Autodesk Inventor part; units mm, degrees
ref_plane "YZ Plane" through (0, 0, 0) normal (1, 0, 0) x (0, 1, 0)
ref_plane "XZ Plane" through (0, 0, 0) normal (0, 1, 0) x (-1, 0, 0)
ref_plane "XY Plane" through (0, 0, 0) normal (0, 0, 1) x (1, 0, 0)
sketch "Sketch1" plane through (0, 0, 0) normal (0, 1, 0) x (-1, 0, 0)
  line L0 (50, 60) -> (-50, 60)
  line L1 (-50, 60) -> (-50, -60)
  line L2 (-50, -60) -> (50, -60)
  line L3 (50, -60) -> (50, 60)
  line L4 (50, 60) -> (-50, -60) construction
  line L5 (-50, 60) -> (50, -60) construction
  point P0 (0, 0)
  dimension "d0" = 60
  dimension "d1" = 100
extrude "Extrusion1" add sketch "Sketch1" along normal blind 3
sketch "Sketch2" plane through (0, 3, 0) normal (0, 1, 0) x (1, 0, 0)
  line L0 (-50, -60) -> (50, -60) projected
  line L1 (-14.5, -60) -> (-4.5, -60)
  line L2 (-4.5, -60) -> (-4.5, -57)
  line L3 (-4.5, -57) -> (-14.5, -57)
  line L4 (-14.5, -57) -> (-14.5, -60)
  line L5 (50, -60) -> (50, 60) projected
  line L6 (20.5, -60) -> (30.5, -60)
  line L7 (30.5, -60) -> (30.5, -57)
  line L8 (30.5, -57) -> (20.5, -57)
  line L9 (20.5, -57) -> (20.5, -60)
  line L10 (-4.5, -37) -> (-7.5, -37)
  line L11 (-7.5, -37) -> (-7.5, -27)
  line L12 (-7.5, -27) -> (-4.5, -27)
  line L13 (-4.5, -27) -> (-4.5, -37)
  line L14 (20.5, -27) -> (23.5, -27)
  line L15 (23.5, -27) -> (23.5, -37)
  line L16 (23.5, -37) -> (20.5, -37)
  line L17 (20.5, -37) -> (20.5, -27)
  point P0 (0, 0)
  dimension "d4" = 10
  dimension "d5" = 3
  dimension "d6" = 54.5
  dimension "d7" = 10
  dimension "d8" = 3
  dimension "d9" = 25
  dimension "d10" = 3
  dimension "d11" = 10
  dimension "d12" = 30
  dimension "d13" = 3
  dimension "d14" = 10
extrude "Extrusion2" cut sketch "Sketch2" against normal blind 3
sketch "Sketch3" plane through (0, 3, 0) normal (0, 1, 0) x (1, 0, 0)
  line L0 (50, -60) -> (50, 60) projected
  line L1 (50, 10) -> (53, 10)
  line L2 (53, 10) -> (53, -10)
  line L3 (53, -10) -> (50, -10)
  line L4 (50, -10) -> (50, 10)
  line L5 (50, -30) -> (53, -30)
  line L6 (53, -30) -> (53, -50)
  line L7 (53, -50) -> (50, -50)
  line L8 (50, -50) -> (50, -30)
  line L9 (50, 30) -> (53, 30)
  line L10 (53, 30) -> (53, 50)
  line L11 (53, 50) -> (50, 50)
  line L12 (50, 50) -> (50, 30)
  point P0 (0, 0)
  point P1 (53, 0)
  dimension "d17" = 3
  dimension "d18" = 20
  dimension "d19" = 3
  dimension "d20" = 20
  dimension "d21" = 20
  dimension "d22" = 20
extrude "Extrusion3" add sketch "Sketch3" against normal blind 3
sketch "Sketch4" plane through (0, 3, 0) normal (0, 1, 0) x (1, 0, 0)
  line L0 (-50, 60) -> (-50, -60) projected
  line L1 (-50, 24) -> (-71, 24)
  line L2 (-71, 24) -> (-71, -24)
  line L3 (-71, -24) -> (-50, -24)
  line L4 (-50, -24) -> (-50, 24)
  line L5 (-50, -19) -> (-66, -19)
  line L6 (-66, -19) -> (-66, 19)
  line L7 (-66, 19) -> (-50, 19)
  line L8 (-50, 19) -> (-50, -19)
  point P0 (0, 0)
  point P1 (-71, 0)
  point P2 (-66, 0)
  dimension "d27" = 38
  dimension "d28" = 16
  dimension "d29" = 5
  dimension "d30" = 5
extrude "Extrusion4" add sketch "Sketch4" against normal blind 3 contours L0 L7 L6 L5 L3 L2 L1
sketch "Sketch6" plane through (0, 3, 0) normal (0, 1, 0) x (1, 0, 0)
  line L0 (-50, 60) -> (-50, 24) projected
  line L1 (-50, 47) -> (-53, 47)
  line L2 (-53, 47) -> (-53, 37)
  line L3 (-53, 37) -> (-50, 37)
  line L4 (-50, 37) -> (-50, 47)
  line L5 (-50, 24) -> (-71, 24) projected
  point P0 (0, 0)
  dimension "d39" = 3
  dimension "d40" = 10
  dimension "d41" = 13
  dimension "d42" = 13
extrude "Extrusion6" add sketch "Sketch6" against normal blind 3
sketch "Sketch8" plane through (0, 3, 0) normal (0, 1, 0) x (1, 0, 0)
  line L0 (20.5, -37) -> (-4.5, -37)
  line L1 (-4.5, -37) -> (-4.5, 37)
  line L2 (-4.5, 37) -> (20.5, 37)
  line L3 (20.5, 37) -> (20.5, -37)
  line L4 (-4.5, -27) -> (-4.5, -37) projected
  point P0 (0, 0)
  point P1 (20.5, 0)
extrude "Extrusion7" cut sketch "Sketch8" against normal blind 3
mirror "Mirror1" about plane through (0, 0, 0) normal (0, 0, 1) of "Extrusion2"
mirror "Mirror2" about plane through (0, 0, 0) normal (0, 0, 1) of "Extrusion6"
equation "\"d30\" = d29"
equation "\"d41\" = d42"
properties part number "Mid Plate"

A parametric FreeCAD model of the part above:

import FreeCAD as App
import Part
import Sketcher
Q = App.Units.Quantity

doc = App.newDocument("Part")
body = doc.addObject("PartDesign::Body", "Body")

sketch1 = doc.addObject("Sketcher::SketchObject", "Sketch")
body.addObject(sketch1)
sketch1.AttachmentSupport = (doc.XZ_Plane, [""])
sketch1.MapMode = "FlatFace"
sketch1.addGeometry([
    Part.LineSegment(App.Vector(-50, -60, 0), App.Vector(-50, 60, 0)),
    Part.LineSegment(App.Vector(-50, 60, 0), App.Vector(50, 60, 0)),
    Part.LineSegment(App.Vector(50, 60, 0), App.Vector(50, -60, 0)),
    Part.LineSegment(App.Vector(50, -60, 0), App.Vector(-50, -60, 0)),
], False)
sketch1.addConstraint([
    Sketcher.Constraint("Coincident", 0, 2, 1, 1),
    Sketcher.Constraint("Coincident", 1, 2, 2, 1),
    Sketcher.Constraint("Coincident", 2, 2, 3, 1),
    Sketcher.Constraint("Coincident", 3, 2, 0, 1),
    Sketcher.Constraint("Vertical", 0),
    Sketcher.Constraint("Horizontal", 1),
    Sketcher.Constraint("Vertical", 2),
    Sketcher.Constraint("Horizontal", 3),
    Sketcher.Constraint("Symmetric", 0, 2, 2, 2, -1, 1),
    Sketcher.Constraint("DistanceX", 1, 1, 1, 2, Q("100 mm")),
    Sketcher.Constraint("DistanceY", -1, 1, 0, 2, Q("60 mm")),
])
pad1 = doc.addObject("PartDesign::Pad", "Pad")
body.addObject(pad1)
pad1.Profile = sketch1
pad1.Length = 3
pad1.Reversed = True

sketch2 = doc.addObject("Sketcher::SketchObject", "Sketch001")
body.addObject(sketch2)
sketch2.AttachmentSupport = (doc.XZ_Plane, [""])
sketch2.MapMode = "FlatFace"
sketch2.AttachmentOffset = App.Placement(App.Vector(0, 0, -3), App.Rotation())
sketch2.addGeometry([
    Part.LineSegment(App.Vector(-14.5, 57, 0), App.Vector(-14.5, 60, 0)),
    Part.LineSegment(App.Vector(-14.5, 60, 0), App.Vector(-4.5, 60, 0)),
    Part.LineSegment(App.Vector(-4.5, 60, 0), App.Vector(-4.5, 57, 0)),
    Part.LineSegment(App.Vector(-4.5, 57, 0), App.Vector(-14.5, 57, 0)),
    Part.LineSegment(App.Vector(20.5, 57, 0), App.Vector(20.5, 60, 0)),
    Part.LineSegment(App.Vector(20.5, 60, 0), App.Vector(30.5, 60, 0)),
    Part.LineSegment(App.Vector(30.5, 60, 0), App.Vector(30.5, 57, 0)),
    Part.LineSegment(App.Vector(30.5, 57, 0), App.Vector(20.5, 57, 0)),
    Part.LineSegment(App.Vector(-7.5, 37, 0), App.Vector(-4.5, 37, 0)),
    Part.LineSegment(App.Vector(-4.5, 37, 0), App.Vector(-4.5, 27, 0)),
    Part.LineSegment(App.Vector(-4.5, 27, 0), App.Vector(-7.5, 27, 0)),
    Part.LineSegment(App.Vector(-7.5, 27, 0), App.Vector(-7.5, 37, 0)),
    Part.LineSegment(App.Vector(23.5, 27, 0), App.Vector(20.5, 27, 0)),
    Part.LineSegment(App.Vector(20.5, 27, 0), App.Vector(20.5, 37, 0)),
    Part.LineSegment(App.Vector(20.5, 37, 0), App.Vector(23.5, 37, 0)),
    Part.LineSegment(App.Vector(23.5, 37, 0), App.Vector(23.5, 27, 0)),
], False)
sketch2.addConstraint([
    Sketcher.Constraint("Coincident", 0, 2, 1, 1),
    Sketcher.Constraint("Coincident", 1, 2, 2, 1),
    Sketcher.Constraint("Coincident", 2, 2, 3, 1),
    Sketcher.Constraint("Coincident", 3, 2, 0, 1),
    Sketcher.Constraint("Coincident", 4, 2, 5, 1),
    Sketcher.Constraint("Coincident", 5, 2, 6, 1),
    Sketcher.Constraint("Coincident", 6, 2, 7, 1),
    Sketcher.Constraint("Coincident", 7, 2, 4, 1),
    Sketcher.Constraint("Coincident", 8, 2, 9, 1),
    Sketcher.Constraint("Coincident", 9, 2, 10, 1),
    Sketcher.Constraint("Coincident", 10, 2, 11, 1),
    Sketcher.Constraint("Coincident", 11, 2, 8, 1),
    Sketcher.Constraint("Coincident", 12, 2, 13, 1),
    Sketcher.Constraint("Coincident", 13, 2, 14, 1),
    Sketcher.Constraint("Coincident", 14, 2, 15, 1),
    Sketcher.Constraint("Coincident", 15, 2, 12, 1),
    Sketcher.Constraint("Vertical", 0),
    Sketcher.Constraint("Horizontal", 1),
    Sketcher.Constraint("Vertical", 2),
    Sketcher.Constraint("Horizontal", 3),
    Sketcher.Constraint("Vertical", 4),
    Sketcher.Constraint("Horizontal", 5),
    Sketcher.Constraint("Vertical", 6),
    Sketcher.Constraint("Horizontal", 7),
    Sketcher.Constraint("Horizontal", 8),
    Sketcher.Constraint("Vertical", 9),
    Sketcher.Constraint("Horizontal", 10),
    Sketcher.Constraint("Vertical", 11),
    Sketcher.Constraint("Horizontal", 12),
    Sketcher.Constraint("Vertical", 13),
    Sketcher.Constraint("Horizontal", 14),
    Sketcher.Constraint("Vertical", 15),
    Sketcher.Constraint("Horizontal", 1, 2, 4, 2),
    Sketcher.Constraint("Horizontal", 3, 2, 6, 2),
    Sketcher.Constraint("Horizontal", 10, 2, 12, 2),
    Sketcher.Constraint("Horizontal", 11, 2, 13, 2),
    Sketcher.Constraint("Vertical", 2, 2, 8, 2),
    Sketcher.Constraint("Vertical", 7, 2, 12, 2),
    Sketcher.Constraint("Equal", 3, 5),
    Sketcher.Constraint("Equal", 10, 12),
    Sketcher.Constraint("Equal", 14, 0),
    Sketcher.Constraint("Equal", 7, 9),
    Sketcher.Constraint("DistanceX", 1, 1, 1, 2, Q("10 mm")),
    Sketcher.Constraint("DistanceX", 8, 1, 8, 2, Q("3 mm")),
    Sketcher.Constraint("DistanceX", 1, 2, 4, 2, Q("25 mm")),
    Sketcher.Constraint("DistanceY", 9, 2, 2, 2, Q("30 mm")),
    Sketcher.Constraint("DistanceY", -1, 1, 0, 2, Q("60 mm")),
    Sketcher.Constraint("DistanceX", 0, 2, -1, 1, Q("14.5 mm")),
])
pocket1 = doc.addObject("PartDesign::Pocket", "Pocket")
body.addObject(pocket1)
pocket1.Profile = sketch2
pocket1.Length = 3
pocket1.Reversed = True

sketch3 = doc.addObject("Sketcher::SketchObject", "Sketch002")
body.addObject(sketch3)
sketch3.AttachmentSupport = (doc.XZ_Plane, [""])
sketch3.MapMode = "FlatFace"
sketch3.AttachmentOffset = App.Placement(App.Vector(0, 0, -3), App.Rotation())
sketch3.addGeometry([
    Part.LineSegment(App.Vector(50, -50, 0), App.Vector(50, -30, 0)),
    Part.LineSegment(App.Vector(50, -30, 0), App.Vector(53, -30, 0)),
    Part.LineSegment(App.Vector(53, -30, 0), App.Vector(53, -50, 0)),
    Part.LineSegment(App.Vector(53, -50, 0), App.Vector(50, -50, 0)),
    Part.LineSegment(App.Vector(50, -10, 0), App.Vector(50, 10, 0)),
    Part.LineSegment(App.Vector(50, 10, 0), App.Vector(53, 10, 0)),
    Part.LineSegment(App.Vector(53, 10, 0), App.Vector(53, -10, 0)),
    Part.LineSegment(App.Vector(53, -10, 0), App.Vector(50, -10, 0)),
    Part.LineSegment(App.Vector(50, 30, 0), App.Vector(50, 50, 0)),
    Part.LineSegment(App.Vector(50, 50, 0), App.Vector(53, 50, 0)),
    Part.LineSegment(App.Vector(53, 50, 0), App.Vector(53, 30, 0)),
    Part.LineSegment(App.Vector(53, 30, 0), App.Vector(50, 30, 0)),
], False)
sketch3.addConstraint([
    Sketcher.Constraint("Coincident", 0, 2, 1, 1),
    Sketcher.Constraint("Coincident", 1, 2, 2, 1),
    Sketcher.Constraint("Coincident", 2, 2, 3, 1),
    Sketcher.Constraint("Coincident", 3, 2, 0, 1),
    Sketcher.Constraint("Coincident", 4, 2, 5, 1),
    Sketcher.Constraint("Coincident", 5, 2, 6, 1),
    Sketcher.Constraint("Coincident", 6, 2, 7, 1),
    Sketcher.Constraint("Coincident", 7, 2, 4, 1),
    Sketcher.Constraint("Coincident", 8, 2, 9, 1),
    Sketcher.Constraint("Coincident", 9, 2, 10, 1),
    Sketcher.Constraint("Coincident", 10, 2, 11, 1),
    Sketcher.Constraint("Coincident", 11, 2, 8, 1),
    Sketcher.Constraint("Vertical", 0),
    Sketcher.Constraint("Horizontal", 1),
    Sketcher.Constraint("Vertical", 2),
    Sketcher.Constraint("Horizontal", 3),
    Sketcher.Constraint("Vertical", 4),
    Sketcher.Constraint("Horizontal", 5),
    Sketcher.Constraint("Vertical", 6),
    Sketcher.Constraint("Horizontal", 7),
    Sketcher.Constraint("Vertical", 8),
    Sketcher.Constraint("Horizontal", 9),
    Sketcher.Constraint("Vertical", 10),
    Sketcher.Constraint("Horizontal", 11),
    Sketcher.Constraint("Symmetric", 3, 2, 8, 2, -1),
    Sketcher.Constraint("Symmetric", 1, 2, 10, 2, -1),
    Sketcher.Constraint("Vertical", 3, 2, 4, 2),
    Sketcher.Constraint("Vertical", 2, 2, 5, 2),
    Sketcher.Constraint("Equal", 2, 4),
    Sketcher.Constraint("DistanceX", 1, 1, 1, 2, Q("3 mm")),
    Sketcher.Constraint("DistanceY", 0, 1, 0, 2, Q("20 mm")),
    Sketcher.Constraint("DistanceY", 1, 2, 6, 2, Q("20 mm")),
    Sketcher.Constraint("DistanceY", 5, 2, 10, 2, Q("20 mm")),
    Sketcher.Constraint("DistanceX", -1, 1, 0, 2, Q("50 mm")),
])
pad2 = doc.addObject("PartDesign::Pad", "Pad001")
body.addObject(pad2)
pad2.Profile = sketch3
pad2.Length = 3

sketch4 = doc.addObject("Sketcher::SketchObject", "Sketch003")
body.addObject(sketch4)
sketch4.AttachmentSupport = (doc.XZ_Plane, [""])
sketch4.MapMode = "FlatFace"
sketch4.AttachmentOffset = App.Placement(App.Vector(0, 0, -3), App.Rotation())
sketch4.addGeometry([
    Part.LineSegment(App.Vector(-50, -19, 0), App.Vector(-50, -24, 0)),
    Part.LineSegment(App.Vector(-50, -24, 0), App.Vector(-71, -24, 0)),
    Part.LineSegment(App.Vector(-71, -24, 0), App.Vector(-71, 24, 0)),
    Part.LineSegment(App.Vector(-71, 24, 0), App.Vector(-50, 24, 0)),
    Part.LineSegment(App.Vector(-50, 24, 0), App.Vector(-50, 19, 0)),
    Part.LineSegment(App.Vector(-50, 19, 0), App.Vector(-66, 19, 0)),
    Part.LineSegment(App.Vector(-66, 19, 0), App.Vector(-66, -19, 0)),
    Part.LineSegment(App.Vector(-66, -19, 0), App.Vector(-50, -19, 0)),
], False)
sketch4.addConstraint([
    Sketcher.Constraint("Coincident", 0, 2, 1, 1),
    Sketcher.Constraint("Coincident", 1, 2, 2, 1),
    Sketcher.Constraint("Coincident", 2, 2, 3, 1),
    Sketcher.Constraint("Coincident", 3, 2, 4, 1),
    Sketcher.Constraint("Coincident", 4, 2, 5, 1),
    Sketcher.Constraint("Coincident", 5, 2, 6, 1),
    Sketcher.Constraint("Coincident", 6, 2, 7, 1),
    Sketcher.Constraint("Coincident", 7, 2, 0, 1),
    Sketcher.Constraint("Vertical", 0),
    Sketcher.Constraint("Horizontal", 1),
    Sketcher.Constraint("Vertical", 2),
    Sketcher.Constraint("Horizontal", 3),
    Sketcher.Constraint("Vertical", 4),
    Sketcher.Constraint("Horizontal", 5),
    Sketcher.Constraint("Vertical", 6),
    Sketcher.Constraint("Horizontal", 7),
    Sketcher.Constraint("Symmetric", 0, 2, 3, 2, -1),
    Sketcher.Constraint("Equal", 0, 4),
    Sketcher.Constraint("DistanceX", 5, 2, 5, 1, Q("16 mm")),
    Sketcher.Constraint("DistanceY", 0, 2, 0, 1, Q("5 mm")),
    Sketcher.Constraint("DistanceY", 6, 2, 6, 1, Q("38 mm")),
    Sketcher.Constraint("DistanceX", 2, 2, 5, 2, Q("5 mm")),
    Sketcher.Constraint("DistanceX", 0, 2, -1, 1, Q("50 mm")),
])
pad3 = doc.addObject("PartDesign::Pad", "Pad002")
body.addObject(pad3)
pad3.Profile = sketch4
pad3.Length = 3

sketch5 = doc.addObject("Sketcher::SketchObject", "Sketch004")
body.addObject(sketch5)
sketch5.AttachmentSupport = (doc.XZ_Plane, [""])
sketch5.MapMode = "FlatFace"
sketch5.AttachmentOffset = App.Placement(App.Vector(0, 0, -3), App.Rotation())
sketch5.addGeometry([
    Part.LineSegment(App.Vector(-50, -37, 0), App.Vector(-50, -47, 0)),
    Part.LineSegment(App.Vector(-50, -47, 0), App.Vector(-53, -47, 0)),
    Part.LineSegment(App.Vector(-53, -47, 0), App.Vector(-53, -37, 0)),
    Part.LineSegment(App.Vector(-53, -37, 0), App.Vector(-50, -37, 0)),
], False)
sketch5.addConstraint([
    Sketcher.Constraint("Coincident", 0, 2, 1, 1),
    Sketcher.Constraint("Coincident", 1, 2, 2, 1),
    Sketcher.Constraint("Coincident", 2, 2, 3, 1),
    Sketcher.Constraint("Coincident", 3, 2, 0, 1),
    Sketcher.Constraint("Vertical", 0),
    Sketcher.Constraint("Horizontal", 1),
    Sketcher.Constraint("Vertical", 2),
    Sketcher.Constraint("Horizontal", 3),
    Sketcher.Constraint("DistanceX", 1, 2, 1, 1, Q("3 mm")),
    Sketcher.Constraint("DistanceY", 0, 2, 0, 1, Q("10 mm")),
    Sketcher.Constraint("DistanceX", 0, 2, -1, 1, Q("50 mm")),
    Sketcher.Constraint("DistanceY", 0, 2, -1, 1, Q("47 mm")),
])
pad4 = doc.addObject("PartDesign::Pad", "Pad003")
body.addObject(pad4)
pad4.Profile = sketch5
pad4.Length = 3

sketch6 = doc.addObject("Sketcher::SketchObject", "Sketch005")
body.addObject(sketch6)
sketch6.AttachmentSupport = (doc.XZ_Plane, [""])
sketch6.MapMode = "FlatFace"
sketch6.AttachmentOffset = App.Placement(App.Vector(0, 0, -3), App.Rotation())
sketch6.addGeometry([
    Part.LineSegment(App.Vector(-4.5, 37, 0), App.Vector(20.5, 37, 0)),
    Part.LineSegment(App.Vector(20.5, 37, 0), App.Vector(20.5, -37, 0)),
    Part.LineSegment(App.Vector(20.5, -37, 0), App.Vector(-4.5, -37, 0)),
    Part.LineSegment(App.Vector(-4.5, -37, 0), App.Vector(-4.5, 37, 0)),
], False)
sketch6.addConstraint([
    Sketcher.Constraint("Coincident", 0, 2, 1, 1),
    Sketcher.Constraint("Coincident", 1, 2, 2, 1),
    Sketcher.Constraint("Coincident", 2, 2, 3, 1),
    Sketcher.Constraint("Coincident", 3, 2, 0, 1),
    Sketcher.Constraint("Horizontal", 0),
    Sketcher.Constraint("Vertical", 1),
    Sketcher.Constraint("Horizontal", 2),
    Sketcher.Constraint("Vertical", 3),
    Sketcher.Constraint("DistanceX", 0, 1, 0, 2, Q("25 mm")),
    Sketcher.Constraint("DistanceY", 1, 2, 1, 1, Q("74 mm")),
    Sketcher.Constraint("DistanceY", -1, 1, 0, 2, Q("37 mm")),
    Sketcher.Constraint("DistanceX", -1, 1, 0, 2, Q("20.5 mm")),
])
pocket2 = doc.addObject("PartDesign::Pocket", "Pocket001")
body.addObject(pocket2)
pocket2.Profile = sketch6
pocket2.Length = 3
pocket2.Reversed = True
doc.recompute()

mirrored = doc.addObject("PartDesign::Mirrored", "Mirrored")
body.addObject(mirrored)
mirrored.Originals = [pocket1]
mirrored.MirrorPlane = (doc.XY_Plane, [""])
body.Tip = mirrored
doc.recompute()

mirrored2 = doc.addObject("PartDesign::Mirrored", "Mirrored001")
body.addObject(mirrored2)
mirrored2.Originals = [pad4]
mirrored2.MirrorPlane = (doc.XY_Plane, [""])
body.Tip = mirrored2

doc.recompute()
